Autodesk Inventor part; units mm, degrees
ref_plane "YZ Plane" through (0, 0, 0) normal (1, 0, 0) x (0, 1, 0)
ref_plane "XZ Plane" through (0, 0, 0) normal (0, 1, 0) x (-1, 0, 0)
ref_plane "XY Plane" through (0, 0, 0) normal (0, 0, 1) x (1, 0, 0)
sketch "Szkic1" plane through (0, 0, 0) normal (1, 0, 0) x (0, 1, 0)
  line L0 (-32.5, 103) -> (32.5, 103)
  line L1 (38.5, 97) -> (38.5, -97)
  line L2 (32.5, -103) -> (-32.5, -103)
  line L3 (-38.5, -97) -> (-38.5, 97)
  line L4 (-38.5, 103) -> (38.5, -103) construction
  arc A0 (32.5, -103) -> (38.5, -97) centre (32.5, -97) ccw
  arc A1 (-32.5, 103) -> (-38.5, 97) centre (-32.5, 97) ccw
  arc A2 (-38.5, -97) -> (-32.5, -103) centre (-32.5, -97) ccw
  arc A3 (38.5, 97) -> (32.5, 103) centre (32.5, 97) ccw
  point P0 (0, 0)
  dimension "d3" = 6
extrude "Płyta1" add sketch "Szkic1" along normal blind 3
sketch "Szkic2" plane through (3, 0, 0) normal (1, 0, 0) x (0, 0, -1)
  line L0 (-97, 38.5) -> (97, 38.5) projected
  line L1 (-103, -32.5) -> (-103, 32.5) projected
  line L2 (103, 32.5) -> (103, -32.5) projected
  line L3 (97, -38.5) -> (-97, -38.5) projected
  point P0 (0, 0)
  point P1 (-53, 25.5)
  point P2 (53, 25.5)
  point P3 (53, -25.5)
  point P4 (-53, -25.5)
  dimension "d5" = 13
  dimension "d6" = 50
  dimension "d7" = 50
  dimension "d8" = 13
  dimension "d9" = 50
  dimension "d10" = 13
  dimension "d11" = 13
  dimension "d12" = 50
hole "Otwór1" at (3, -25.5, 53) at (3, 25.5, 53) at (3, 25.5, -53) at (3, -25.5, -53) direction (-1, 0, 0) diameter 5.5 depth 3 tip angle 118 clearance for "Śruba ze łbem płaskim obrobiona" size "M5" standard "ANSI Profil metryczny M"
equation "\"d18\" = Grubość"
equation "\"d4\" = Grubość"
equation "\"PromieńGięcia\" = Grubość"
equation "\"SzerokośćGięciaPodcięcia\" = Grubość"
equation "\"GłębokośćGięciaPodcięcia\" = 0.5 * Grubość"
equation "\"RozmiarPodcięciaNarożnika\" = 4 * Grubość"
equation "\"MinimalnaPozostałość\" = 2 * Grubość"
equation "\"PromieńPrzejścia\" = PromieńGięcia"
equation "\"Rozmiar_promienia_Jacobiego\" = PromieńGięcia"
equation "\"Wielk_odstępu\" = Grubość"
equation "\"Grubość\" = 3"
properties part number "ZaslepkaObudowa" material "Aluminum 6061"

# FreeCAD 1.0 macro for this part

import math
import FreeCAD as App
import Part
import Sketcher
Q = App.Units.Quantity

doc = App.newDocument("Part")
body = doc.addObject("PartDesign::Body", "Body")

# Sketch on YZ plane
sketch1 = body.newObject("Sketcher::SketchObject", "Sketch")
sketch1.AttachmentSupport = (doc.getObject("YZ_Plane"), [""])
sketch1.MapMode = "FlatFace"
sketch1.addGeometry(Part.LineSegment(App.Vector(32.5, 103, 0), App.Vector(-32.5, 103, 0)), False)
sketch1.addGeometry(Part.ArcOfCircle(Part.Circle(App.Vector(-32.5, 97, 0), App.Vector(0, 0, 1), 6), math.radians(90), math.radians(180)), False)
sketch1.addGeometry(Part.LineSegment(App.Vector(-38.5, 97, 0), App.Vector(-38.5, -97, 0)), False)
sketch1.addGeometry(Part.ArcOfCircle(Part.Circle(App.Vector(-32.5, -97, 0), App.Vector(0, 0, 1), 6), math.radians(180), math.radians(270)), False)
sketch1.addGeometry(Part.LineSegment(App.Vector(-32.5, -103, 0), App.Vector(32.5, -103, 0)), False)
sketch1.addGeometry(Part.ArcOfCircle(Part.Circle(App.Vector(32.5, -97, 0), App.Vector(0, 0, 1), 6), math.radians(-90), math.radians(0)), False)
sketch1.addGeometry(Part.LineSegment(App.Vector(38.5, -97, 0), App.Vector(38.5, 97, 0)), False)
sketch1.addGeometry(Part.ArcOfCircle(Part.Circle(App.Vector(32.5, 97, 0), App.Vector(0, 0, 1), 6), math.radians(0), math.radians(90)), False)
sketch1.addConstraint(Sketcher.Constraint("Tangent", 0, 2, 1, 1))
sketch1.addConstraint(Sketcher.Constraint("Tangent", 1, 2, 2, 1))
sketch1.addConstraint(Sketcher.Constraint("Tangent", 2, 2, 3, 1))
sketch1.addConstraint(Sketcher.Constraint("Tangent", 3, 2, 4, 1))
sketch1.addConstraint(Sketcher.Constraint("Tangent", 4, 2, 5, 1))
sketch1.addConstraint(Sketcher.Constraint("Tangent", 5, 2, 6, 1))
sketch1.addConstraint(Sketcher.Constraint("Tangent", 6, 2, 7, 1))
sketch1.addConstraint(Sketcher.Constraint("Tangent", 7, 2, 0, 1))
sketch1.addConstraint(Sketcher.Constraint("Horizontal", 0))
sketch1.addConstraint(Sketcher.Constraint("Vertical", 2))
sketch1.addConstraint(Sketcher.Constraint("Horizontal", 4))
sketch1.addConstraint(Sketcher.Constraint("Vertical", 6))
sketch1.addConstraint(Sketcher.Constraint("Equal", 1, 3))
sketch1.addConstraint(Sketcher.Constraint("Equal", 3, 5))
sketch1.addConstraint(Sketcher.Constraint("Equal", 5, 7))
sketch1.addConstraint(Sketcher.Constraint("Symmetric", 1, 3, 5, 3, -1, 1))
sketch1.addConstraint(Sketcher.Constraint("Radius", 1, Q("6 mm")))
sketch1.addConstraint(Sketcher.Constraint("DistanceX", 0, 2, 0, 1, Q("65 mm")))
sketch1.addConstraint(Sketcher.Constraint("DistanceY", 2, 2, 2, 1, Q("194 mm")))
pad1 = body.newObject("PartDesign::Pad", "Pad")
pad1.Profile = sketch1
pad1.Length = 3

# Sketch on YZ plane
sketch2 = body.newObject("Sketcher::SketchObject", "Sketch001")
sketch2.AttachmentSupport = (doc.getObject("YZ_Plane"), [""])
sketch2.MapMode = "FlatFace"
sketch2.AttachmentOffset = App.Placement(App.Vector(0, 0, 3), App.Rotation())
sketch2.addGeometry(Part.Circle(App.Vector(-25.5, 53, 0), App.Vector(0, 0, 1), 2.75), False)
sketch2.addGeometry(Part.Circle(App.Vector(25.5, 53, 0), App.Vector(0, 0, 1), 2.75), False)
sketch2.addGeometry(Part.Circle(App.Vector(25.5, -53, 0), App.Vector(0, 0, 1), 2.75), False)
sketch2.addGeometry(Part.Circle(App.Vector(-25.5, -53, 0), App.Vector(0, 0, 1), 2.75), False)
sketch2.addConstraint(Sketcher.Constraint("Equal", 0, 1))
sketch2.addConstraint(Sketcher.Constraint("Equal", 1, 2))
sketch2.addConstraint(Sketcher.Constraint("Equal", 2, 3))
sketch2.addConstraint(Sketcher.Constraint("Symmetric", 0, 3, 2, 3, -1, 1))
sketch2.addConstraint(Sketcher.Constraint("Symmetric", 1, 3, 3, 3, -1, 1))
sketch2.addConstraint(Sketcher.Constraint("Symmetric", 0, 3, 1, 3, -2))
sketch2.addConstraint(Sketcher.Constraint("Diameter", 0, Q("5.5 mm")))
sketch2.addConstraint(Sketcher.Constraint("DistanceY", -1, 1, 0, 3, Q("53 mm")))
sketch2.addConstraint(Sketcher.Constraint("DistanceX", 0, 3, 1, 3, Q("51 mm")))
doc.recompute()
hole = body.newObject("PartDesign::Hole", "Hole")
hole.Profile = sketch2
hole.ThreadType = "None"
hole.Diameter = 5.5
hole.DepthType = "Dimension"
hole.Depth = 3
hole.DrillPoint = "Angled"
hole.DrillPointAngle = 118

doc.recompute()
